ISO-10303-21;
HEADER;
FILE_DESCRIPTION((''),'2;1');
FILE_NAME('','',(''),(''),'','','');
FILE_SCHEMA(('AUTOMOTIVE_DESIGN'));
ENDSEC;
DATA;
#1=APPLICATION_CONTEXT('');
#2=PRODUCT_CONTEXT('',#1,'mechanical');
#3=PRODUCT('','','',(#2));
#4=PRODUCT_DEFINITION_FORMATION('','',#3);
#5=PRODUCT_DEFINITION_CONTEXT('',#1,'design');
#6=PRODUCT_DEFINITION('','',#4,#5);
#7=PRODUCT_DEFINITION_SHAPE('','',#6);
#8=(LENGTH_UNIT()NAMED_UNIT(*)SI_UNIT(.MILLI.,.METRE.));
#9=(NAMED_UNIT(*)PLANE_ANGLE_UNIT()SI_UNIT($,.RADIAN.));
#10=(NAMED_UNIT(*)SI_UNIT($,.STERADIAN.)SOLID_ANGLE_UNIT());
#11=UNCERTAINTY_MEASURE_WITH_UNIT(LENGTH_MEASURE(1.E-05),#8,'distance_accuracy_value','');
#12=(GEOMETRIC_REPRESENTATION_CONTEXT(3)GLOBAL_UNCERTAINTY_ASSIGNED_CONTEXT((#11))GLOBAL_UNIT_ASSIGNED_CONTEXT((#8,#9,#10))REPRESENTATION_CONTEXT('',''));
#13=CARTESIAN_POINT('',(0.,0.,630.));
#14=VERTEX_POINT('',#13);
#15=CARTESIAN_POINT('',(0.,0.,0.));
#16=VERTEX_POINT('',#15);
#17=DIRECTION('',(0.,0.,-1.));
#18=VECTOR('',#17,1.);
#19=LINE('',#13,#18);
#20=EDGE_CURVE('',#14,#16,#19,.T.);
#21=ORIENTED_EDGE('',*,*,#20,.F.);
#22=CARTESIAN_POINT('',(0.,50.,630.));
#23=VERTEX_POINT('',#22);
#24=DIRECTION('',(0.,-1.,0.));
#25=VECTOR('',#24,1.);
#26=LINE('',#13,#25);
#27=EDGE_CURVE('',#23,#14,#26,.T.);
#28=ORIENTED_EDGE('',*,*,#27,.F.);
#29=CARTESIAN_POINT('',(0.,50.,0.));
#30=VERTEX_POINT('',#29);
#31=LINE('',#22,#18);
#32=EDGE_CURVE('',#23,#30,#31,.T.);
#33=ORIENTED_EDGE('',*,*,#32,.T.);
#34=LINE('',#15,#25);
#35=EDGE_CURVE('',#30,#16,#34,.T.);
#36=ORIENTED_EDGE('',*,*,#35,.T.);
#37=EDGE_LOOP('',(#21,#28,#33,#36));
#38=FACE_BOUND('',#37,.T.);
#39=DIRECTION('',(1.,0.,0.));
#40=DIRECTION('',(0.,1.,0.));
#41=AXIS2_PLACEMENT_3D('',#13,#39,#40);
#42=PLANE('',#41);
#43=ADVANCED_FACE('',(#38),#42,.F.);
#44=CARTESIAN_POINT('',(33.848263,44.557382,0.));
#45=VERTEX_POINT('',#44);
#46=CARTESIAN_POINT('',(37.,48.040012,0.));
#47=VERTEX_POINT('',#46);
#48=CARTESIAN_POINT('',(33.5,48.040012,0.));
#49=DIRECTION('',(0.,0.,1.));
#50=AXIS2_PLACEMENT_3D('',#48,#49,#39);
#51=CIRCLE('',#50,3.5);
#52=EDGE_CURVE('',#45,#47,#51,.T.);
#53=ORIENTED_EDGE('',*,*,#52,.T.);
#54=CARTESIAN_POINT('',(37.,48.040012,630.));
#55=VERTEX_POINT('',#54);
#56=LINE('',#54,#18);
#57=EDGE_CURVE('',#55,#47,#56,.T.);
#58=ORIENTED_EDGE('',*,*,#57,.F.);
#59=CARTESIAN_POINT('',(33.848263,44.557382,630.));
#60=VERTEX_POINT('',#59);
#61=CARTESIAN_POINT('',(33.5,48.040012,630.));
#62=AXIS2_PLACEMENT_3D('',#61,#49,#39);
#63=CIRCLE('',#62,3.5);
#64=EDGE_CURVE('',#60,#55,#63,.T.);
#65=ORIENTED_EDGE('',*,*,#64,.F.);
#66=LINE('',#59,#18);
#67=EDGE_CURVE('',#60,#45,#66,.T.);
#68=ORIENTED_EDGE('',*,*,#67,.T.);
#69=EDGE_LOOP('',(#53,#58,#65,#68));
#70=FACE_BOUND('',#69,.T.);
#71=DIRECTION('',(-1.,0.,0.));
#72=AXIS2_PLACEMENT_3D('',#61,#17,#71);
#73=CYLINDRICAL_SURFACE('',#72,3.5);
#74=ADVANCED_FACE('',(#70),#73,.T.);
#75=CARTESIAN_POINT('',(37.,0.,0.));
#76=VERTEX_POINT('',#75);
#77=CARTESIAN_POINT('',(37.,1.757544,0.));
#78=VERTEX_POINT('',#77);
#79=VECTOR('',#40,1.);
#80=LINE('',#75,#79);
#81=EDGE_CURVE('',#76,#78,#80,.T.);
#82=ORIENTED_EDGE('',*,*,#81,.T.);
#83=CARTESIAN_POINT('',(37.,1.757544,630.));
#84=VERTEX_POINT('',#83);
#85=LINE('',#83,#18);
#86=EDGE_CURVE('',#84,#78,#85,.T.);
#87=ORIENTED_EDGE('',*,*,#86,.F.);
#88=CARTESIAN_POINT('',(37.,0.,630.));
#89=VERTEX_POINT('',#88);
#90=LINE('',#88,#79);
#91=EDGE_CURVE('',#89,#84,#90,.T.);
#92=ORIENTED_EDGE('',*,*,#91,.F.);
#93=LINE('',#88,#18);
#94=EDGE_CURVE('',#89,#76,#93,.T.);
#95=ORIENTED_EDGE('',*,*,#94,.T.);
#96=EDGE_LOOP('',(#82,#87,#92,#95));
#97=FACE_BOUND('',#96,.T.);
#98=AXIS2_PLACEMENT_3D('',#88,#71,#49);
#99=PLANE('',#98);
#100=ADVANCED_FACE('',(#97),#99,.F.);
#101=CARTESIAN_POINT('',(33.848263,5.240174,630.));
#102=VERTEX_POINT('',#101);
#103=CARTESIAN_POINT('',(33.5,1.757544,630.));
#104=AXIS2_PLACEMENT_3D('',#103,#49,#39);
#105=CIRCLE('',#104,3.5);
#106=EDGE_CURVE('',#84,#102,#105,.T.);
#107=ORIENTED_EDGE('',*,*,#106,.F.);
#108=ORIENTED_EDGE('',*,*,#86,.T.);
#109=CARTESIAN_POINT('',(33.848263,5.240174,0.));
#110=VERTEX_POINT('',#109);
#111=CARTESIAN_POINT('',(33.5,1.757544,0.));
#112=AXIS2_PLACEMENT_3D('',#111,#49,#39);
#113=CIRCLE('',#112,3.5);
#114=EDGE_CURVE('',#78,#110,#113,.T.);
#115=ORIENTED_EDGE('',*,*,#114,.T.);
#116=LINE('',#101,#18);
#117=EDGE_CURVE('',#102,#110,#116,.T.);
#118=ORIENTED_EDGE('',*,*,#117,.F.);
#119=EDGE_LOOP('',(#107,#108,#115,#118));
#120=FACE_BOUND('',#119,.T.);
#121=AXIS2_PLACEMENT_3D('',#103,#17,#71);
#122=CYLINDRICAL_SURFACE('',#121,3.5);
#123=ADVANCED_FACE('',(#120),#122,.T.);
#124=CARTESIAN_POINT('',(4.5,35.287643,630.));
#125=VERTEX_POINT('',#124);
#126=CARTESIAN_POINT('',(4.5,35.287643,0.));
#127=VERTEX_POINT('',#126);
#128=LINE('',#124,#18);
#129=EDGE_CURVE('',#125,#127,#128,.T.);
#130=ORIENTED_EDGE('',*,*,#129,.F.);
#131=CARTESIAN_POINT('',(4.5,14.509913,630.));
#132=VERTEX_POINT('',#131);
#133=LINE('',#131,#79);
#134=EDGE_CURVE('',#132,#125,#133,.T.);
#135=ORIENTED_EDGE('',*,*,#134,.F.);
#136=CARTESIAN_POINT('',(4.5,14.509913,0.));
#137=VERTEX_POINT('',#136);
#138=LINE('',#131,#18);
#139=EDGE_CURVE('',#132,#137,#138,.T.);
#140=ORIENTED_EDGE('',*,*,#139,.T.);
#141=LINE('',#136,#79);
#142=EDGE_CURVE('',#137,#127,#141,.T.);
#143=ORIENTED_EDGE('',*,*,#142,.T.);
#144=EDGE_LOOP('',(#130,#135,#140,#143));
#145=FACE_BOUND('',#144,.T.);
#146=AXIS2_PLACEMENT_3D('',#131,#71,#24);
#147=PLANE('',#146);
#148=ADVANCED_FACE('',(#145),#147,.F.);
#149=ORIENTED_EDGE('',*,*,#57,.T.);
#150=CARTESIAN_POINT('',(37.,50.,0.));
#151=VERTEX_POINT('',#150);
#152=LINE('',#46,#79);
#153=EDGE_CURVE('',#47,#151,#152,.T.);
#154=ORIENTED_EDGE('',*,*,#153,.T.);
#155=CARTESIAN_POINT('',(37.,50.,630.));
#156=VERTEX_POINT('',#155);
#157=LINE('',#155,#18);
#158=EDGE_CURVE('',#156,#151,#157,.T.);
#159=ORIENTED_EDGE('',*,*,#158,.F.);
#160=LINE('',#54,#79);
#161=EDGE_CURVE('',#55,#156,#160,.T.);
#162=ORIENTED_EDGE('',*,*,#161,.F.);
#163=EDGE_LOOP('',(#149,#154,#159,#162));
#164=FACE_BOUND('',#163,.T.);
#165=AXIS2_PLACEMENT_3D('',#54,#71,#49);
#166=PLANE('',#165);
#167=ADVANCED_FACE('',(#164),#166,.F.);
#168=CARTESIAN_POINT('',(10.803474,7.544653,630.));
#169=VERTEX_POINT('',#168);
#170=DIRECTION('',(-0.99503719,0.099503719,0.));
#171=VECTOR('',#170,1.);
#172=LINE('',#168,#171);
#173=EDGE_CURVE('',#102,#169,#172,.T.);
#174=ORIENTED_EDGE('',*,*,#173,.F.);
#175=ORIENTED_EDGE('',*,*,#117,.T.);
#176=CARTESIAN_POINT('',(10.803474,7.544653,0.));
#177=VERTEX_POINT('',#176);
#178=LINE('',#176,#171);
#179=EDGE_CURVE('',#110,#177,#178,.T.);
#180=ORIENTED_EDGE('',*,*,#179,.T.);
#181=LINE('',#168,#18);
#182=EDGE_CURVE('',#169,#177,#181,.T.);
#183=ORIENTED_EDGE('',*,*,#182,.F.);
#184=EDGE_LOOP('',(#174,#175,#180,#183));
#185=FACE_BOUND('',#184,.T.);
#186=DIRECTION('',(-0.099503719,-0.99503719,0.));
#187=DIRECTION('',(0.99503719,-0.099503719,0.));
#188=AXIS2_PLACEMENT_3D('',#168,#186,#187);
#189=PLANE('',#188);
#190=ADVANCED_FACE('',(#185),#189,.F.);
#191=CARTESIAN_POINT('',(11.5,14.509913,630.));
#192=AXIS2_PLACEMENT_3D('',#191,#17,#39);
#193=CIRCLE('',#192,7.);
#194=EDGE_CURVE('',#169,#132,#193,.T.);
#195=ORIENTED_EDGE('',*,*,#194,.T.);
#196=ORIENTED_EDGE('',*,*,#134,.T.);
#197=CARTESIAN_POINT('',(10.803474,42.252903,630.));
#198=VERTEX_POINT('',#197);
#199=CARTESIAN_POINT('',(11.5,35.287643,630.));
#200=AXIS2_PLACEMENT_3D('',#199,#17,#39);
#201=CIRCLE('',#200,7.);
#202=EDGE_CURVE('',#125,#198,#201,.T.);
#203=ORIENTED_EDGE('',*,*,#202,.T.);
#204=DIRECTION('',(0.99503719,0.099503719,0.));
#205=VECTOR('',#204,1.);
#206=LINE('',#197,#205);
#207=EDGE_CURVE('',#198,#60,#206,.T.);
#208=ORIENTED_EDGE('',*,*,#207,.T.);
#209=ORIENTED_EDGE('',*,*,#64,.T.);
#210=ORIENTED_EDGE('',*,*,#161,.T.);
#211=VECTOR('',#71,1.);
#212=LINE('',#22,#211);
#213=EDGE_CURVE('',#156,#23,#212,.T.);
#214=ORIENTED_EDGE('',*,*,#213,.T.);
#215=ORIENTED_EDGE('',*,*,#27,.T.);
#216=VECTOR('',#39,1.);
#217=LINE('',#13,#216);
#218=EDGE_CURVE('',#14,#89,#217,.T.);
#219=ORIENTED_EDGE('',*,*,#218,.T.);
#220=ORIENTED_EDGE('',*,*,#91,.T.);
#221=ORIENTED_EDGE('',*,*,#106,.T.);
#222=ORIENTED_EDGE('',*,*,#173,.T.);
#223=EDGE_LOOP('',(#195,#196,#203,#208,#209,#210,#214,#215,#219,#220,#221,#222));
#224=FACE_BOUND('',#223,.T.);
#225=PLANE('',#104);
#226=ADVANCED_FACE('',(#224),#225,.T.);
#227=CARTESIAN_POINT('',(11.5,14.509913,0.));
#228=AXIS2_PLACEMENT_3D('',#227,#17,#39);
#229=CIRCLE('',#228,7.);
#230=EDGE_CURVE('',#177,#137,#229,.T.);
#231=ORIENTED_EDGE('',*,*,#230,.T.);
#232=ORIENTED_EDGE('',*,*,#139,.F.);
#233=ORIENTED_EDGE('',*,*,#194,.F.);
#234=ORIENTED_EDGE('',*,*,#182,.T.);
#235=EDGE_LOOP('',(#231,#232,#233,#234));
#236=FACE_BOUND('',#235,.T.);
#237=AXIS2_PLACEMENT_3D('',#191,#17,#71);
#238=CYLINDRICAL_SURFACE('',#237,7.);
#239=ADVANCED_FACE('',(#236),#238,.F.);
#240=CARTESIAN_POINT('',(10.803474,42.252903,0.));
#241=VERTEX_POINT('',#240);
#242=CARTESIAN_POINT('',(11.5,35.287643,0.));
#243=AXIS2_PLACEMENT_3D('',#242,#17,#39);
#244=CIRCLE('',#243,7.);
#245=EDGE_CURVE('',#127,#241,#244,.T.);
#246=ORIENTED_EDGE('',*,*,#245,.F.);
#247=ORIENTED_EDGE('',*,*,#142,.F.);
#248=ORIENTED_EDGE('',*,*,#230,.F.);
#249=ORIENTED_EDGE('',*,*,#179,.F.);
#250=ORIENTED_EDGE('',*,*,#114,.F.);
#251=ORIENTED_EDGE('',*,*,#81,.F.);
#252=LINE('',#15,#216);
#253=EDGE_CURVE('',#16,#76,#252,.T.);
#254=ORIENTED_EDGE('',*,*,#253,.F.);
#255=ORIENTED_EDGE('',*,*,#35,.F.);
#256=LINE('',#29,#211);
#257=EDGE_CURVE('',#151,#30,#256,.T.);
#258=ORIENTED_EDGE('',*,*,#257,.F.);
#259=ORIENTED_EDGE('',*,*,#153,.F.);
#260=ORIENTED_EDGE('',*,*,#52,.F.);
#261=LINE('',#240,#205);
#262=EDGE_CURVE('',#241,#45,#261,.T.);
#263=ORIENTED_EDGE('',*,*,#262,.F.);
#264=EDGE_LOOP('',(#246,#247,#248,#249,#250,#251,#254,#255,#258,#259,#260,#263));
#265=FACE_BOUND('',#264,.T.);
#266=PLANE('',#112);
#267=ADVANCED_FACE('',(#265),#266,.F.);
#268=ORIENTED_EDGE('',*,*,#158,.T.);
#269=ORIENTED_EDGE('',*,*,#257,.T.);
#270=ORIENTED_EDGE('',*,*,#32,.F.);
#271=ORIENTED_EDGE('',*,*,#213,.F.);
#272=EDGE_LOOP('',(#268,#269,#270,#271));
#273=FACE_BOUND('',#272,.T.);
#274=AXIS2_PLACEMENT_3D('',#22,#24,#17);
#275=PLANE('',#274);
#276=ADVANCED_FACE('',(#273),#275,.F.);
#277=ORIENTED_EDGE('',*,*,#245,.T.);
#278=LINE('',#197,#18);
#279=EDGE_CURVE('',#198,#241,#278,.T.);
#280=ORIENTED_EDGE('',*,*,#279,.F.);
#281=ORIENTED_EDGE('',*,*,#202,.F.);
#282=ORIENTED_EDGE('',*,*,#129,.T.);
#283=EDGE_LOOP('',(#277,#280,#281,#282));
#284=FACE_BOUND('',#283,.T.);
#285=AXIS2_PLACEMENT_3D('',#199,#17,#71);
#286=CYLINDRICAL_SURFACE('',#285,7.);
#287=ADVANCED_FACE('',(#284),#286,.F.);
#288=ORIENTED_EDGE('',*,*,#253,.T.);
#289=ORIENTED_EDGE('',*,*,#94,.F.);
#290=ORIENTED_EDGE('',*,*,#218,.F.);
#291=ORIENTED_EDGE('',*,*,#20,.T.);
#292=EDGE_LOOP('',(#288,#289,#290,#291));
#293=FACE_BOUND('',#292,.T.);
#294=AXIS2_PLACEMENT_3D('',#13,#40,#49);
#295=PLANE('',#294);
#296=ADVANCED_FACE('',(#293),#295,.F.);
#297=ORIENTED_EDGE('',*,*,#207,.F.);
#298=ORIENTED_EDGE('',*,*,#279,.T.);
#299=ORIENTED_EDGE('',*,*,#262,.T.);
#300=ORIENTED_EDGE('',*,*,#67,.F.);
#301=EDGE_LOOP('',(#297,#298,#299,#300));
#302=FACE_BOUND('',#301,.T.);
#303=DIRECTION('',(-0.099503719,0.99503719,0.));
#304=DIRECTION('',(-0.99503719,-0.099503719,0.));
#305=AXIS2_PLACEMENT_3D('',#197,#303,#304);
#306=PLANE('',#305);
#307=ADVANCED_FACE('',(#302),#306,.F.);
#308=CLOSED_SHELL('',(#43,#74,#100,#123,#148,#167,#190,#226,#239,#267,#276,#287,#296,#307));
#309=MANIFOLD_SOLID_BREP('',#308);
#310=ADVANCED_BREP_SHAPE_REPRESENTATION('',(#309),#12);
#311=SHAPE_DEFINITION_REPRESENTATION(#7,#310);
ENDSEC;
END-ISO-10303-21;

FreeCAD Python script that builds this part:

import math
import FreeCAD as App
import Part
import Sketcher
from FreeCAD import Vector

doc = App.newDocument("Part")
body = doc.addObject("PartDesign::Body", "Body")

# Sketch on XY plane
sketch1 = body.newObject("Sketcher::SketchObject", "Sketch")
sketch1.AttachmentSupport = (doc.getObject("XY_Plane"), [""])
sketch1.MapMode = "FlatFace"
sketch1.addGeometry(Part.LineSegment(Vector(0, 50, 0), Vector(0, 0, 0)), False)
sketch1.addGeometry(Part.LineSegment(Vector(0, 0, 0), Vector(37, 0, 0)), False)
sketch1.addGeometry(Part.LineSegment(Vector(37, 0, 0), Vector(37, 1.8, 0)), False)
sketch1.addGeometry(Part.ArcOfCircle(Part.Circle(Vector(33.5, 1.8, 0), Vector(0, 0, 1), 3.5), math.radians(0), math.radians(84)), False)
sketch1.addGeometry(Part.LineSegment(Vector(33.8, 5.2, 0), Vector(10.8, 7.5, 0)), False)
sketch1.addGeometry(Part.ArcOfCircle(Part.Circle(Vector(11.5, 14.5, 0), Vector(0, 0, 1), 7), math.radians(180), math.radians(264)), False)
sketch1.addGeometry(Part.LineSegment(Vector(4.5, 14.5, 0), Vector(4.5, 35.3, 0)), False)
sketch1.addGeometry(Part.ArcOfCircle(Part.Circle(Vector(11.5, 35.3, 0), Vector(0, 0, 1), 7), math.radians(96), math.radians(180)), False)
sketch1.addGeometry(Part.LineSegment(Vector(10.8, 42.3, 0), Vector(33.8, 44.6, 0)), False)
sketch1.addGeometry(Part.ArcOfCircle(Part.Circle(Vector(33.5, 48, 0), Vector(0, 0, 1), 3.5), math.radians(-84), math.radians(0)), False)
sketch1.addGeometry(Part.LineSegment(Vector(37, 48, 0), Vector(37, 50, 0)), False)
sketch1.addGeometry(Part.LineSegment(Vector(37, 50, 0), Vector(0, 50, 0)), False)
sketch1.addConstraint(Sketcher.Constraint("Coincident", 0, 2, 1, 1))
sketch1.addConstraint(Sketcher.Constraint("Coincident", 1, 2, 2, 1))
sketch1.addConstraint(Sketcher.Constraint("Tangent", 2, 2, 3, 1))
sketch1.addConstraint(Sketcher.Constraint("Tangent", 3, 2, 4, 1))
sketch1.addConstraint(Sketcher.Constraint("Tangent", 4, 2, 5, 2))
sketch1.addConstraint(Sketcher.Constraint("Tangent", 5, 1, 6, 1))
sketch1.addConstraint(Sketcher.Constraint("Tangent", 6, 2, 7, 2))
sketch1.addConstraint(Sketcher.Constraint("Tangent", 7, 1, 8, 1))
sketch1.addConstraint(Sketcher.Constraint("Tangent", 8, 2, 9, 1))
sketch1.addConstraint(Sketcher.Constraint("Tangent", 9, 2, 10, 1))
sketch1.addConstraint(Sketcher.Constraint("Coincident", 10, 2, 11, 1))
sketch1.addConstraint(Sketcher.Constraint("Coincident", 11, 2, 0, 1))
sketch1.addConstraint(Sketcher.Constraint("Vertical", 0))
sketch1.addConstraint(Sketcher.Constraint("Horizontal", 1))
sketch1.addConstraint(Sketcher.Constraint("Vertical", 2))
sketch1.addConstraint(Sketcher.Constraint("Vertical", 6))
sketch1.addConstraint(Sketcher.Constraint("Vertical", 10))
sketch1.addConstraint(Sketcher.Constraint("Horizontal", 11))
sketch1.addConstraint(Sketcher.Constraint("Coincident", 0, 2, -1, 1))
sketch1.addConstraint(Sketcher.Constraint("Equal", 5, 7))
sketch1.addConstraint(Sketcher.Constraint("Equal", 3, 9))
sketch1.addConstraint(Sketcher.Constraint("Vertical", 3, 3, 9, 3))
sketch1.addConstraint(Sketcher.Constraint("Vertical", 4, 2, 7, 1))
sketch1.addConstraint(Sketcher.Constraint("Radius", 5, 7.0))
sketch1.addConstraint(Sketcher.Constraint("Radius", 3, 3.5))
sketch1.addConstraint(Sketcher.Constraint("DistanceX", 1, 1, 1, 2, 37.0))
sketch1.addConstraint(Sketcher.Constraint("DistanceY", 0, 2, 0, 1, 50.0))
sketch1.addConstraint(Sketcher.Constraint("DistanceX", 5, 3, 3, 3, 22.0))
sketch1.addConstraint(Sketcher.Constraint("DistanceY", 6, 1, 6, 2, 20.77773))
sketch1.addConstraint(Sketcher.Constraint("DistanceY", 3, 3, 7, 3, 33.530099))
sketch1.addConstraint(Sketcher.Constraint("DistanceY", 2, 1, 2, 2, 1.757544))
pad1 = body.newObject("PartDesign::Pad", "Pad")
pad1.Profile = sketch1
pad1.Length = 630

doc.recompute()
